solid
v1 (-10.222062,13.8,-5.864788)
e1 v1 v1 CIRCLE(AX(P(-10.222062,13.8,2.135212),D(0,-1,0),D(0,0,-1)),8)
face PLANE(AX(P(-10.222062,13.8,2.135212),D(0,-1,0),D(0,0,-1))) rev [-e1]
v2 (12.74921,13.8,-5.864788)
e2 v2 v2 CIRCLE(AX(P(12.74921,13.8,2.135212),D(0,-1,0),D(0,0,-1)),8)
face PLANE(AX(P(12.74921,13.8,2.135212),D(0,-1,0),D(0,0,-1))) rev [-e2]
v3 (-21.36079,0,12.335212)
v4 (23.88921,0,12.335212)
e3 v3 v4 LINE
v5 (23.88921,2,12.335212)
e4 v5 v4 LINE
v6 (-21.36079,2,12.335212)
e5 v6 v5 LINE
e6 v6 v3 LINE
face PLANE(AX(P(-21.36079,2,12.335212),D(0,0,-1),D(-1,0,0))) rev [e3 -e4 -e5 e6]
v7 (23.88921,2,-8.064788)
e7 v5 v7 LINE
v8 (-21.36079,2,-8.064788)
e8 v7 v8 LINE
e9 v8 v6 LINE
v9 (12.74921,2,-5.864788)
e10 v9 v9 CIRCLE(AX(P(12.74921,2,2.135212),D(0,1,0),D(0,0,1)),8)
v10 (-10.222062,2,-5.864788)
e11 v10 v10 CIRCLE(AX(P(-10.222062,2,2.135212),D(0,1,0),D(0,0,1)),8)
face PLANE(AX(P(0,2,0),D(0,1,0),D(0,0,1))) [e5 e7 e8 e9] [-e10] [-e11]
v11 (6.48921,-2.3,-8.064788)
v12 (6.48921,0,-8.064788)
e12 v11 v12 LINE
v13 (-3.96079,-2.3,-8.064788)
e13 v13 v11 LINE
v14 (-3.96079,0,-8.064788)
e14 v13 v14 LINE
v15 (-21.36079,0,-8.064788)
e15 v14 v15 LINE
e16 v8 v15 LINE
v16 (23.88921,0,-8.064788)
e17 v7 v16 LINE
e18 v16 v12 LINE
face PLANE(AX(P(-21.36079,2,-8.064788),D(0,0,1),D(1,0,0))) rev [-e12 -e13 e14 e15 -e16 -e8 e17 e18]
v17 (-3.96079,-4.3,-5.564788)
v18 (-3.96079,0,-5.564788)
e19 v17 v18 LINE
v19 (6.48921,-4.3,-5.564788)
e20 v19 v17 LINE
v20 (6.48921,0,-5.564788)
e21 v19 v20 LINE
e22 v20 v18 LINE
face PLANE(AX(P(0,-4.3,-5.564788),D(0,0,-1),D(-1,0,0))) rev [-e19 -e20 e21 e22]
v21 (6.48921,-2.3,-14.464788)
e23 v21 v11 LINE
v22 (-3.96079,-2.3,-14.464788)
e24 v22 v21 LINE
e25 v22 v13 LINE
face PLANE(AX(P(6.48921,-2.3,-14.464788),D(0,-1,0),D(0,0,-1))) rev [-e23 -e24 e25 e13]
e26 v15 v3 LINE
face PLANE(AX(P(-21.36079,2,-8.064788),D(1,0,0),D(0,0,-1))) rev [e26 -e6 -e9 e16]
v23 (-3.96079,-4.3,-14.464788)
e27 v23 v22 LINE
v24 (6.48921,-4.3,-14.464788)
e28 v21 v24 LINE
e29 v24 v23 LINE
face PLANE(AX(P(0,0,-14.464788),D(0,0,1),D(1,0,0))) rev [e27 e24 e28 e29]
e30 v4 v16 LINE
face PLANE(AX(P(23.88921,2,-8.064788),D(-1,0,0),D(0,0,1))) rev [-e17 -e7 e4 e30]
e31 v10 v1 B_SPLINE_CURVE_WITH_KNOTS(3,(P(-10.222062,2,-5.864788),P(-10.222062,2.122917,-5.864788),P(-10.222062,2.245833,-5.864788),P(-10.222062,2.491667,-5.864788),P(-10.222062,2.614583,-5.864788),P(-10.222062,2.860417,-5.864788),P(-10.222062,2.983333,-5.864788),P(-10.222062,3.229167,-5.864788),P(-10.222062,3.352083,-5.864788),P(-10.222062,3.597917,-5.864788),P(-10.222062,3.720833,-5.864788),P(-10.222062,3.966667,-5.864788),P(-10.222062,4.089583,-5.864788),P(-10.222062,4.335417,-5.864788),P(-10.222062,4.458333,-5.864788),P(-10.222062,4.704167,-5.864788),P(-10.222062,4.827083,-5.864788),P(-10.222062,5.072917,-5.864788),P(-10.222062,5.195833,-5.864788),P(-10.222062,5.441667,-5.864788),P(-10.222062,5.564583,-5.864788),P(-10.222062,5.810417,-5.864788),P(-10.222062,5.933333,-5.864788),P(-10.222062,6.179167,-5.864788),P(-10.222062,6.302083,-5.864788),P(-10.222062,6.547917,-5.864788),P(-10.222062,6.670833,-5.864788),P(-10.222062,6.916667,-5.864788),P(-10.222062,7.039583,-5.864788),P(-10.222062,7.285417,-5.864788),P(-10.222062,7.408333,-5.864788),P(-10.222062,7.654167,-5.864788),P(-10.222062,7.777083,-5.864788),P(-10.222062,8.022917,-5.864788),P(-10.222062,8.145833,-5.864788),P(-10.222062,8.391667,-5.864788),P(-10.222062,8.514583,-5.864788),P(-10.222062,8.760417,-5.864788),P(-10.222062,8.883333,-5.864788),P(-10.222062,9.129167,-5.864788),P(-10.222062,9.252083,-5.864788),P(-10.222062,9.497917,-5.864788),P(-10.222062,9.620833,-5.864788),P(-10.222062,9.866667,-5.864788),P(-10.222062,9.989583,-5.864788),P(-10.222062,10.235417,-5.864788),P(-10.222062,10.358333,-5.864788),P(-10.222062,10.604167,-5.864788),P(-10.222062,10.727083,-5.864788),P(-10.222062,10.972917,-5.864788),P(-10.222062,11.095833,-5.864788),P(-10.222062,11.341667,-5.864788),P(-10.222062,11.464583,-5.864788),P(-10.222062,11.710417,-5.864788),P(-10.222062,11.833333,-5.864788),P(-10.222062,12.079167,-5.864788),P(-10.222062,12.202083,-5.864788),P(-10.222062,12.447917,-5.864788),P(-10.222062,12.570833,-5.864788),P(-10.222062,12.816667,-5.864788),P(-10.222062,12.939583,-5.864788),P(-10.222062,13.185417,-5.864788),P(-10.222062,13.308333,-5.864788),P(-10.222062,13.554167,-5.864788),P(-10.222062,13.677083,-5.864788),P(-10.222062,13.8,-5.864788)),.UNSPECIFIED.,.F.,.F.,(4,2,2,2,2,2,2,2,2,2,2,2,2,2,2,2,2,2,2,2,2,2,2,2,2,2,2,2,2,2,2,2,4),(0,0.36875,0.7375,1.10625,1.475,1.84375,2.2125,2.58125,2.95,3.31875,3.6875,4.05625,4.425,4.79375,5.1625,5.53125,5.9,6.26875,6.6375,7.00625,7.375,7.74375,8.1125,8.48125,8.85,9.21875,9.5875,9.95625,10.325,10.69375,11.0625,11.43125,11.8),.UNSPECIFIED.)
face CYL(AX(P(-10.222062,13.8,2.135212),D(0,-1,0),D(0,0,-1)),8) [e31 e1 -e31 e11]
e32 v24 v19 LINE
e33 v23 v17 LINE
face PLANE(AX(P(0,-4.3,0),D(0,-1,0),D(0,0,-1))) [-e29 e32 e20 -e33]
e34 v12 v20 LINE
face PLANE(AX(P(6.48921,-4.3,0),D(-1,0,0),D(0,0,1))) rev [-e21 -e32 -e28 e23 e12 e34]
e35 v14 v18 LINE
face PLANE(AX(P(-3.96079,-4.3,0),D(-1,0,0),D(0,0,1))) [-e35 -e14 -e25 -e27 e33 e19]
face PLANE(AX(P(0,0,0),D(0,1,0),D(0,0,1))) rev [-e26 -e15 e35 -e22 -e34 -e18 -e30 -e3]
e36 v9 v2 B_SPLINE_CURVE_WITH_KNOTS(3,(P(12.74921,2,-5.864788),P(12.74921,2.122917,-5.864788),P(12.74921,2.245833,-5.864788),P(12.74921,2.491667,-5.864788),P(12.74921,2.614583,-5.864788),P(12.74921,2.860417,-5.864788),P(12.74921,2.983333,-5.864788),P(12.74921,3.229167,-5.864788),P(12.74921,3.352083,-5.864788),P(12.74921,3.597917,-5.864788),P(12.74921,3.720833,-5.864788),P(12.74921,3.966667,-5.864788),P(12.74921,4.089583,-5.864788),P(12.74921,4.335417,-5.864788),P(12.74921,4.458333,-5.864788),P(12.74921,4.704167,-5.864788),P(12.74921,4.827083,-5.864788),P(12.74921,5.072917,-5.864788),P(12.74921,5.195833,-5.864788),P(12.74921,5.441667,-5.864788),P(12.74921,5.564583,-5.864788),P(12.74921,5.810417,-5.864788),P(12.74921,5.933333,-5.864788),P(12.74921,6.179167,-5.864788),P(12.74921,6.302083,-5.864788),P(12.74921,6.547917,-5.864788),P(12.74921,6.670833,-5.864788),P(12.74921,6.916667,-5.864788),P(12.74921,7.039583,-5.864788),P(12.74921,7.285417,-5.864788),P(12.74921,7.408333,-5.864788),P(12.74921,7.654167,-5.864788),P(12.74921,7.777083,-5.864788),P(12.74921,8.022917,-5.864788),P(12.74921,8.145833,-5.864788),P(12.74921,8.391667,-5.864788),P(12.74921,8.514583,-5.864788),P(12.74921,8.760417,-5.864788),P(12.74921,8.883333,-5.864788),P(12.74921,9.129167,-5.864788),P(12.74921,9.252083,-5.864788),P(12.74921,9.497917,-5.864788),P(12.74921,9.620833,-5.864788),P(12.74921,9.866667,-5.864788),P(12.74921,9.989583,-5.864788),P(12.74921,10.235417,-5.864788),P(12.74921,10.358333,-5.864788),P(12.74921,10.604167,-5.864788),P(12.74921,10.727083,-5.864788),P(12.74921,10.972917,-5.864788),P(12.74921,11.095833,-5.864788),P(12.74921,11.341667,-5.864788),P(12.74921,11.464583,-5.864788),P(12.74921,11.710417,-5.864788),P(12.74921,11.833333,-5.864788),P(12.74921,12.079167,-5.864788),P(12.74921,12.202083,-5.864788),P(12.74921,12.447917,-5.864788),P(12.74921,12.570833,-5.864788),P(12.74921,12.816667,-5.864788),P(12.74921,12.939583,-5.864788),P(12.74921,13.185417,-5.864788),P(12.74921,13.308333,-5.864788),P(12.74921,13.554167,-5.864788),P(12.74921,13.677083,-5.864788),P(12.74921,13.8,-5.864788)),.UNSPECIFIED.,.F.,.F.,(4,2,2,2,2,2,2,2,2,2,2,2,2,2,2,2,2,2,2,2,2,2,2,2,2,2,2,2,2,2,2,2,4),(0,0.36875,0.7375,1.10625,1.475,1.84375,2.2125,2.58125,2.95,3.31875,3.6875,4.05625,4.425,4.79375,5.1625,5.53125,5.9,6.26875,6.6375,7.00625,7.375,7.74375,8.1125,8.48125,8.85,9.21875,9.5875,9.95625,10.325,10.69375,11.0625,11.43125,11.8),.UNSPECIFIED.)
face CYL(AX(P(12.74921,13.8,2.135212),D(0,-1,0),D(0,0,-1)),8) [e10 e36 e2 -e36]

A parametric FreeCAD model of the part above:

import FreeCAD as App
import Part
import Sketcher

doc = App.newDocument("Part")
body = doc.addObject("PartDesign::Body", "Body")

# Sketch on XZ plane
sketch1 = doc.addObject("Sketcher::SketchObject", "Sketch")
body.addObject(sketch1)
sketch1.AttachmentSupport = (doc.XZ_Plane, [""])
sketch1.MapMode = "FlatFace"
sketch1.addGeometry(Part.LineSegment(App.Vector(-21, -8, 0), App.Vector(-21, 12, 0)), False)
sketch1.addGeometry(Part.LineSegment(App.Vector(-21, 12, 0), App.Vector(24, 12, 0)), False)
sketch1.addGeometry(Part.LineSegment(App.Vector(24, 12, 0), App.Vector(24, -8, 0)), False)
sketch1.addGeometry(Part.LineSegment(App.Vector(24, -8, 0), App.Vector(-21, -8, 0)), False)
sketch1.addGeometry(Part.Circle(App.Vector(-10, 2, 0), App.Vector(0, 0, 1), 8), False)
sketch1.addGeometry(Part.Circle(App.Vector(13, 2, 0), App.Vector(0, 0, 1), 8), False)
sketch1.addConstraint(Sketcher.Constraint("Coincident", 0, 2, 1, 1))
sketch1.addConstraint(Sketcher.Constraint("Coincident", 1, 2, 2, 1))
sketch1.addConstraint(Sketcher.Constraint("Coincident", 2, 2, 3, 1))
sketch1.addConstraint(Sketcher.Constraint("Coincident", 3, 2, 0, 1))
sketch1.addConstraint(Sketcher.Constraint("Vertical", 0))
sketch1.addConstraint(Sketcher.Constraint("Horizontal", 1))
sketch1.addConstraint(Sketcher.Constraint("Vertical", 2))
sketch1.addConstraint(Sketcher.Constraint("Horizontal", 3))
sketch1.addConstraint(Sketcher.Constraint("Equal", 4, 5))
sketch1.addConstraint(Sketcher.Constraint("Horizontal", 4, 3, 5, 3))
sketch1.addConstraint(Sketcher.Constraint("Diameter", 4, 16.0))
sketch1.addConstraint(Sketcher.Constraint("DistanceY", 0, 1, 0, 2, 20.4))
sketch1.addConstraint(Sketcher.Constraint("DistanceX", 1, 1, 1, 2, 45.25))
sketch1.addConstraint(Sketcher.Constraint("DistanceY", 4, 3, 0, 2, 10.2))
sketch1.addConstraint(Sketcher.Constraint("DistanceX", 0, 2, 5, 3, 34.11))
sketch1.addConstraint(Sketcher.Constraint("DistanceX", 4, 3, -1, 1, 10.222062))
sketch1.addConstraint(Sketcher.Constraint("DistanceY", -1, 1, 4, 3, 2.135212))
sketch1.addConstraint(Sketcher.Constraint("DistanceX", -1, 1, 5, 3, 12.74921))
pad1 = doc.addObject("PartDesign::Pad", "Pad")
body.addObject(pad1)
pad1.Profile = sketch1
pad1.Length = 2
pad1.Reversed = True

# Sketch on XZ plane
sketch2 = doc.addObject("Sketcher::SketchObject", "Sketch001")
body.addObject(sketch2)
sketch2.AttachmentSupport = (doc.XZ_Plane, [""])
sketch2.MapMode = "FlatFace"
sketch2.addGeometry(Part.Circle(App.Vector(-10, 2, 0), App.Vector(0, 0, 1), 8), False)
sketch2.addGeometry(Part.Circle(App.Vector(13, 2, 0), App.Vector(0, 0, 1), 8), False)
sketch2.addConstraint(Sketcher.Constraint("Equal", 0, 1))
sketch2.addConstraint(Sketcher.Constraint("Horizontal", 0, 3, 1, 3))
sketch2.addConstraint(Sketcher.Constraint("Diameter", 0, 16.0))
sketch2.addConstraint(Sketcher.Constraint("DistanceX", 0, 3, -1, 1, 10.222062))
sketch2.addConstraint(Sketcher.Constraint("DistanceY", -1, 1, 0, 3, 2.135212))
sketch2.addConstraint(Sketcher.Constraint("DistanceX", -1, 1, 1, 3, 12.74921))
pad2 = doc.addObject("PartDesign::Pad", "Pad001")
body.addObject(pad2)
pad2.Profile = sketch2
pad2.Length = 13.8
pad2.Reversed = True

# Sketch on XZ plane
sketch3 = doc.addObject("Sketcher::SketchObject", "Sketch002")
body.addObject(sketch3)
sketch3.AttachmentSupport = (doc.XZ_Plane, [""])
sketch3.MapMode = "FlatFace"
sketch3.addGeometry(Part.LineSegment(App.Vector(6.5, -8.1, 0), App.Vector(6.5, -5.6, 0)), False)
sketch3.addGeometry(Part.LineSegment(App.Vector(6.5, -5.6, 0), App.Vector(-4, -5.6, 0)), False)
sketch3.addGeometry(Part.LineSegment(App.Vector(-4, -5.6, 0), App.Vector(-4, -8.1, 0)), False)
sketch3.addGeometry(Part.LineSegment(App.Vector(-4, -8.1, 0), App.Vector(6.5, -8.1, 0)), False)
sketch3.addConstraint(Sketcher.Constraint("Coincident", 0, 2, 1, 1))
sketch3.addConstraint(Sketcher.Constraint("Coincident", 1, 2, 2, 1))
sketch3.addConstraint(Sketcher.Constraint("Coincident", 2, 2, 3, 1))
sketch3.addConstraint(Sketcher.Constraint("Coincident", 3, 2, 0, 1))
sketch3.addConstraint(Sketcher.Constraint("Vertical", 0))
sketch3.addConstraint(Sketcher.Constraint("Horizontal", 1))
sketch3.addConstraint(Sketcher.Constraint("Vertical", 2))
sketch3.addConstraint(Sketcher.Constraint("Horizontal", 3))
sketch3.addConstraint(Sketcher.Constraint("DistanceY", 0, 1, 0, 2, 2.5))
sketch3.addConstraint(Sketcher.Constraint("DistanceX", 1, 2, 1, 1, 10.45))
sketch3.addConstraint(Sketcher.Constraint("DistanceX", -1, 1, 0, 2, 6.48921))
sketch3.addConstraint(Sketcher.Constraint("DistanceY", 0, 2, -1, 1, 5.564788))
pad3 = doc.addObject("PartDesign::Pad", "Pad002")
body.addObject(pad3)
pad3.Profile = sketch3
pad3.Length = 4.3

# Sketch on XY plane
sketch4 = doc.addObject("Sketcher::SketchObject", "Sketch003")
body.addObject(sketch4)
sketch4.AttachmentSupport = (doc.XY_Plane, [""])
sketch4.MapMode = "FlatFace"
sketch4.AttachmentOffset = App.Placement(App.Vector(0, 0, -8.064788), App.Rotation())
sketch4.addGeometry(Part.LineSegment(App.Vector(6.5, -2.3, 0), App.Vector(6.5, -4.3, 0)), False)
sketch4.addGeometry(Part.LineSegment(App.Vector(6.5, -4.3, 0), App.Vector(-4, -4.3, 0)), False)
sketch4.addGeometry(Part.LineSegment(App.Vector(-4, -4.3, 0), App.Vector(-4, -2.3, 0)), False)
sketch4.addGeometry(Part.LineSegment(App.Vector(-4, -2.3, 0), App.Vector(6.5, -2.3, 0)), False)
sketch4.addConstraint(Sketcher.Constraint("Coincident", 0, 2, 1, 1))
sketch4.addConstraint(Sketcher.Constraint("Coincident", 1, 2, 2, 1))
sketch4.addConstraint(Sketcher.Constraint("Coincident", 2, 2, 3, 1))
sketch4.addConstraint(Sketcher.Constraint("Coincident", 3, 2, 0, 1))
sketch4.addConstraint(Sketcher.Constraint("Vertical", 0))
sketch4.addConstraint(Sketcher.Constraint("Horizontal", 1))
sketch4.addConstraint(Sketcher.Constraint("Vertical", 2))
sketch4.addConstraint(Sketcher.Constraint("Horizontal", 3))
sketch4.addConstraint(Sketcher.Constraint("DistanceY", 0, 2, 0, 1, 2.0))
sketch4.addConstraint(Sketcher.Constraint("DistanceX", 1, 2, 1, 1, 10.45))
sketch4.addConstraint(Sketcher.Constraint("DistanceY", 0, 2, -1, 1, 4.3))
sketch4.addConstraint(Sketcher.Constraint("DistanceX", -1, 1, 0, 2, 6.48921))
pad4 = doc.addObject("PartDesign::Pad", "Pad003")
body.addObject(pad4)
pad4.Profile = sketch4
pad4.Length = 6.4
pad4.Reversed = True

doc.recompute()
